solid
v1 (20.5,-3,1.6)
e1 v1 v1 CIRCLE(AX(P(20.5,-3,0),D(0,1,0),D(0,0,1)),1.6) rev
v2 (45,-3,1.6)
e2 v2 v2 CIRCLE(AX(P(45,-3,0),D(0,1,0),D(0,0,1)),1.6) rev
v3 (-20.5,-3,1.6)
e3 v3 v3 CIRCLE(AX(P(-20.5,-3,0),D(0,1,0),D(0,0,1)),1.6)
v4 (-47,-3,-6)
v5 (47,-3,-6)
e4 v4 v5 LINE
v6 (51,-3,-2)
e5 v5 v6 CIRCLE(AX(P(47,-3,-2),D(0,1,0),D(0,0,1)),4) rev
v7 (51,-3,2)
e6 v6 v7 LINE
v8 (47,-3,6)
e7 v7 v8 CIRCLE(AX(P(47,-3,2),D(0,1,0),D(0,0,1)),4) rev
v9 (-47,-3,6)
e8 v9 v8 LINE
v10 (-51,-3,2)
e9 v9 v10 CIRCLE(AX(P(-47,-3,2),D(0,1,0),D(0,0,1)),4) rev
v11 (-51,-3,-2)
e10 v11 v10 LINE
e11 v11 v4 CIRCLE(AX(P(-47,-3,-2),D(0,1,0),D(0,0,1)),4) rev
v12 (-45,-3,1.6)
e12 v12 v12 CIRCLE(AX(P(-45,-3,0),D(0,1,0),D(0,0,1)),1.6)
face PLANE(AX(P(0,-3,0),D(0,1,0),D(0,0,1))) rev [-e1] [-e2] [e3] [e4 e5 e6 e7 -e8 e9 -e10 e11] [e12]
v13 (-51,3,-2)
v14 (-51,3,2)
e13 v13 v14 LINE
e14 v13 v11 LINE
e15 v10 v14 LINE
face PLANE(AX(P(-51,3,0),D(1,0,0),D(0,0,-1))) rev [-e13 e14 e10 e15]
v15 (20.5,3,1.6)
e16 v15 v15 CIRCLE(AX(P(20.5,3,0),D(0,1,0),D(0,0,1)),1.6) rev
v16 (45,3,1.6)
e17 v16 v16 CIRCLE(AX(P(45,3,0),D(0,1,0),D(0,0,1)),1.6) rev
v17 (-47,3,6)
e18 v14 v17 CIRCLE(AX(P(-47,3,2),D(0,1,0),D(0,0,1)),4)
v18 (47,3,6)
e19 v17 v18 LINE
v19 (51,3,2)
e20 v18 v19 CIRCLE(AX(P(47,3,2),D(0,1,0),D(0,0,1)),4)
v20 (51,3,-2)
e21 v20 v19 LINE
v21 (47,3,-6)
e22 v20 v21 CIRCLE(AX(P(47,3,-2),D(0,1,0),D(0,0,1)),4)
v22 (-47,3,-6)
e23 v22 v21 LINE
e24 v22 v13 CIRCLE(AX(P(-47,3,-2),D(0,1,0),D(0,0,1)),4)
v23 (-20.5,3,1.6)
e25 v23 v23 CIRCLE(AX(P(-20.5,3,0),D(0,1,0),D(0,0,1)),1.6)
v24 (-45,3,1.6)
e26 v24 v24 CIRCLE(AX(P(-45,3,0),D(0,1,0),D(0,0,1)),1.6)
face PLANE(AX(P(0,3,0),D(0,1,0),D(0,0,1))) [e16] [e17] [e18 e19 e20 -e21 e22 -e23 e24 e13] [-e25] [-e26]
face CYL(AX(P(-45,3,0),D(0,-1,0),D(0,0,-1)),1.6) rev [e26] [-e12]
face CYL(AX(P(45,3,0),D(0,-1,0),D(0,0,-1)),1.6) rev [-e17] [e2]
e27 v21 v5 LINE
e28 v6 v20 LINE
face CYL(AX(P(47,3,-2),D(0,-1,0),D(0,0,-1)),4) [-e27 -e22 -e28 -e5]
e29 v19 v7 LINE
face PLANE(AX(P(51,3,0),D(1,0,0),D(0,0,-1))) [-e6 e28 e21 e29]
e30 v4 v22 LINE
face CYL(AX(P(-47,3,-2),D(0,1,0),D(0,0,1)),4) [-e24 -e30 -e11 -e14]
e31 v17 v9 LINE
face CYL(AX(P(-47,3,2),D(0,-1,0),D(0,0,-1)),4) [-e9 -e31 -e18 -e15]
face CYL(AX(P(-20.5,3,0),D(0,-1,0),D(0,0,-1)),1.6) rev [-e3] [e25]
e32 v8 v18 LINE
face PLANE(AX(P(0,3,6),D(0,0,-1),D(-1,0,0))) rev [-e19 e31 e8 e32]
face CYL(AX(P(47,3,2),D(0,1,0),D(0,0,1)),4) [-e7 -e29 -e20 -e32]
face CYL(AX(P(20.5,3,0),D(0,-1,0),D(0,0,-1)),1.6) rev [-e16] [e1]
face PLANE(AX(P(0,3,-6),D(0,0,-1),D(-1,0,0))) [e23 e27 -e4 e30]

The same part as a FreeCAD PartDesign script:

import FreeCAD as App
import Part
import Sketcher
from FreeCAD import Vector


def edges_at(feature, points):
    """Names of the edges that pass closest to the given points."""
    edges = feature.Shape.Edges
    near = lambda p: min(range(len(edges)), key=lambda i: edges[i].distToShape(Part.Vertex(*p))[0])
    return sorted({f"Edge{near(p) + 1}" for p in points})

doc = App.newDocument("Part")
body = doc.addObject("PartDesign::Body", "Body")

# Sketch on XZ plane
sketch1 = doc.addObject("Sketcher::SketchObject", "Sketch")
body.addObject(sketch1)
sketch1.AttachmentSupport = (doc.XZ_Plane, [""])
sketch1.MapMode = "FlatFace"
sketch1.addGeometry(Part.LineSegment(Vector(-51, -6, 0), Vector(-51, 6, 0)), False)
sketch1.addGeometry(Part.LineSegment(Vector(-51, 6, 0), Vector(51, 6, 0)), False)
sketch1.addGeometry(Part.LineSegment(Vector(51, 6, 0), Vector(51, -6, 0)), False)
sketch1.addGeometry(Part.LineSegment(Vector(51, -6, 0), Vector(-51, -6, 0)), False)
sketch1.addGeometry(Part.Circle(Vector(-45, 0, 0), Vector(0, 0, 1), 1.6), False)
sketch1.addGeometry(Part.Circle(Vector(-20.5, 0, 0), Vector(0, 0, 1), 1.6), False)
sketch1.addGeometry(Part.Circle(Vector(20.5, 0, 0), Vector(0, 0, 1), 1.6), False)
sketch1.addGeometry(Part.Circle(Vector(45, 0, 0), Vector(0, 0, 1), 1.6), False)
sketch1.addConstraint(Sketcher.Constraint("Coincident", 0, 2, 1, 1))
sketch1.addConstraint(Sketcher.Constraint("Coincident", 1, 2, 2, 1))
sketch1.addConstraint(Sketcher.Constraint("Coincident", 2, 2, 3, 1))
sketch1.addConstraint(Sketcher.Constraint("Coincident", 3, 2, 0, 1))
sketch1.addConstraint(Sketcher.Constraint("Vertical", 0))
sketch1.addConstraint(Sketcher.Constraint("Horizontal", 1))
sketch1.addConstraint(Sketcher.Constraint("Vertical", 2))
sketch1.addConstraint(Sketcher.Constraint("Horizontal", 3))
sketch1.addConstraint(Sketcher.Constraint("Equal", 4, 5))
sketch1.addConstraint(Sketcher.Constraint("Equal", 5, 6))
sketch1.addConstraint(Sketcher.Constraint("Equal", 6, 7))
sketch1.addConstraint(Sketcher.Constraint("Symmetric", 5, 3, 6, 3, -1, 1))
sketch1.addConstraint(Sketcher.Constraint("Symmetric", 4, 3, 7, 3, -1, 1))
sketch1.addConstraint(Sketcher.Constraint("Symmetric", 0, 2, 2, 2, -1, 1))
sketch1.addConstraint(Sketcher.Constraint("PointOnObject", 4, 3, -1))
sketch1.addConstraint(Sketcher.Constraint("PointOnObject", 5, 3, -1))
sketch1.addConstraint(Sketcher.Constraint("Diameter", 4, 3.2))
sketch1.addConstraint(Sketcher.Constraint("DistanceX", 1, 1, 1, 2, 102.0))
sketch1.addConstraint(Sketcher.Constraint("DistanceY", 0, 1, 0, 2, 12.0))
sketch1.addConstraint(Sketcher.Constraint("DistanceX", 4, 3, -1, 1, 45.0))
sketch1.addConstraint(Sketcher.Constraint("DistanceX", 5, 3, 6, 3, 41.0))
pad1 = doc.addObject("PartDesign::Pad", "Pad")
body.addObject(pad1)
pad1.Profile = sketch1
pad1.Length = 6
pad1.Midplane = True
doc.recompute()

fillet = doc.addObject("PartDesign::Fillet", "Fillet")
body.addObject(fillet)
fillet.Base = (pad1, edges_at(pad1, [
    (51, 0, 6),
    (-51, 0, 6),
    (-51, 0, -6),
    (51, 0, -6),
]))
fillet.Radius = 4

doc.recompute()
